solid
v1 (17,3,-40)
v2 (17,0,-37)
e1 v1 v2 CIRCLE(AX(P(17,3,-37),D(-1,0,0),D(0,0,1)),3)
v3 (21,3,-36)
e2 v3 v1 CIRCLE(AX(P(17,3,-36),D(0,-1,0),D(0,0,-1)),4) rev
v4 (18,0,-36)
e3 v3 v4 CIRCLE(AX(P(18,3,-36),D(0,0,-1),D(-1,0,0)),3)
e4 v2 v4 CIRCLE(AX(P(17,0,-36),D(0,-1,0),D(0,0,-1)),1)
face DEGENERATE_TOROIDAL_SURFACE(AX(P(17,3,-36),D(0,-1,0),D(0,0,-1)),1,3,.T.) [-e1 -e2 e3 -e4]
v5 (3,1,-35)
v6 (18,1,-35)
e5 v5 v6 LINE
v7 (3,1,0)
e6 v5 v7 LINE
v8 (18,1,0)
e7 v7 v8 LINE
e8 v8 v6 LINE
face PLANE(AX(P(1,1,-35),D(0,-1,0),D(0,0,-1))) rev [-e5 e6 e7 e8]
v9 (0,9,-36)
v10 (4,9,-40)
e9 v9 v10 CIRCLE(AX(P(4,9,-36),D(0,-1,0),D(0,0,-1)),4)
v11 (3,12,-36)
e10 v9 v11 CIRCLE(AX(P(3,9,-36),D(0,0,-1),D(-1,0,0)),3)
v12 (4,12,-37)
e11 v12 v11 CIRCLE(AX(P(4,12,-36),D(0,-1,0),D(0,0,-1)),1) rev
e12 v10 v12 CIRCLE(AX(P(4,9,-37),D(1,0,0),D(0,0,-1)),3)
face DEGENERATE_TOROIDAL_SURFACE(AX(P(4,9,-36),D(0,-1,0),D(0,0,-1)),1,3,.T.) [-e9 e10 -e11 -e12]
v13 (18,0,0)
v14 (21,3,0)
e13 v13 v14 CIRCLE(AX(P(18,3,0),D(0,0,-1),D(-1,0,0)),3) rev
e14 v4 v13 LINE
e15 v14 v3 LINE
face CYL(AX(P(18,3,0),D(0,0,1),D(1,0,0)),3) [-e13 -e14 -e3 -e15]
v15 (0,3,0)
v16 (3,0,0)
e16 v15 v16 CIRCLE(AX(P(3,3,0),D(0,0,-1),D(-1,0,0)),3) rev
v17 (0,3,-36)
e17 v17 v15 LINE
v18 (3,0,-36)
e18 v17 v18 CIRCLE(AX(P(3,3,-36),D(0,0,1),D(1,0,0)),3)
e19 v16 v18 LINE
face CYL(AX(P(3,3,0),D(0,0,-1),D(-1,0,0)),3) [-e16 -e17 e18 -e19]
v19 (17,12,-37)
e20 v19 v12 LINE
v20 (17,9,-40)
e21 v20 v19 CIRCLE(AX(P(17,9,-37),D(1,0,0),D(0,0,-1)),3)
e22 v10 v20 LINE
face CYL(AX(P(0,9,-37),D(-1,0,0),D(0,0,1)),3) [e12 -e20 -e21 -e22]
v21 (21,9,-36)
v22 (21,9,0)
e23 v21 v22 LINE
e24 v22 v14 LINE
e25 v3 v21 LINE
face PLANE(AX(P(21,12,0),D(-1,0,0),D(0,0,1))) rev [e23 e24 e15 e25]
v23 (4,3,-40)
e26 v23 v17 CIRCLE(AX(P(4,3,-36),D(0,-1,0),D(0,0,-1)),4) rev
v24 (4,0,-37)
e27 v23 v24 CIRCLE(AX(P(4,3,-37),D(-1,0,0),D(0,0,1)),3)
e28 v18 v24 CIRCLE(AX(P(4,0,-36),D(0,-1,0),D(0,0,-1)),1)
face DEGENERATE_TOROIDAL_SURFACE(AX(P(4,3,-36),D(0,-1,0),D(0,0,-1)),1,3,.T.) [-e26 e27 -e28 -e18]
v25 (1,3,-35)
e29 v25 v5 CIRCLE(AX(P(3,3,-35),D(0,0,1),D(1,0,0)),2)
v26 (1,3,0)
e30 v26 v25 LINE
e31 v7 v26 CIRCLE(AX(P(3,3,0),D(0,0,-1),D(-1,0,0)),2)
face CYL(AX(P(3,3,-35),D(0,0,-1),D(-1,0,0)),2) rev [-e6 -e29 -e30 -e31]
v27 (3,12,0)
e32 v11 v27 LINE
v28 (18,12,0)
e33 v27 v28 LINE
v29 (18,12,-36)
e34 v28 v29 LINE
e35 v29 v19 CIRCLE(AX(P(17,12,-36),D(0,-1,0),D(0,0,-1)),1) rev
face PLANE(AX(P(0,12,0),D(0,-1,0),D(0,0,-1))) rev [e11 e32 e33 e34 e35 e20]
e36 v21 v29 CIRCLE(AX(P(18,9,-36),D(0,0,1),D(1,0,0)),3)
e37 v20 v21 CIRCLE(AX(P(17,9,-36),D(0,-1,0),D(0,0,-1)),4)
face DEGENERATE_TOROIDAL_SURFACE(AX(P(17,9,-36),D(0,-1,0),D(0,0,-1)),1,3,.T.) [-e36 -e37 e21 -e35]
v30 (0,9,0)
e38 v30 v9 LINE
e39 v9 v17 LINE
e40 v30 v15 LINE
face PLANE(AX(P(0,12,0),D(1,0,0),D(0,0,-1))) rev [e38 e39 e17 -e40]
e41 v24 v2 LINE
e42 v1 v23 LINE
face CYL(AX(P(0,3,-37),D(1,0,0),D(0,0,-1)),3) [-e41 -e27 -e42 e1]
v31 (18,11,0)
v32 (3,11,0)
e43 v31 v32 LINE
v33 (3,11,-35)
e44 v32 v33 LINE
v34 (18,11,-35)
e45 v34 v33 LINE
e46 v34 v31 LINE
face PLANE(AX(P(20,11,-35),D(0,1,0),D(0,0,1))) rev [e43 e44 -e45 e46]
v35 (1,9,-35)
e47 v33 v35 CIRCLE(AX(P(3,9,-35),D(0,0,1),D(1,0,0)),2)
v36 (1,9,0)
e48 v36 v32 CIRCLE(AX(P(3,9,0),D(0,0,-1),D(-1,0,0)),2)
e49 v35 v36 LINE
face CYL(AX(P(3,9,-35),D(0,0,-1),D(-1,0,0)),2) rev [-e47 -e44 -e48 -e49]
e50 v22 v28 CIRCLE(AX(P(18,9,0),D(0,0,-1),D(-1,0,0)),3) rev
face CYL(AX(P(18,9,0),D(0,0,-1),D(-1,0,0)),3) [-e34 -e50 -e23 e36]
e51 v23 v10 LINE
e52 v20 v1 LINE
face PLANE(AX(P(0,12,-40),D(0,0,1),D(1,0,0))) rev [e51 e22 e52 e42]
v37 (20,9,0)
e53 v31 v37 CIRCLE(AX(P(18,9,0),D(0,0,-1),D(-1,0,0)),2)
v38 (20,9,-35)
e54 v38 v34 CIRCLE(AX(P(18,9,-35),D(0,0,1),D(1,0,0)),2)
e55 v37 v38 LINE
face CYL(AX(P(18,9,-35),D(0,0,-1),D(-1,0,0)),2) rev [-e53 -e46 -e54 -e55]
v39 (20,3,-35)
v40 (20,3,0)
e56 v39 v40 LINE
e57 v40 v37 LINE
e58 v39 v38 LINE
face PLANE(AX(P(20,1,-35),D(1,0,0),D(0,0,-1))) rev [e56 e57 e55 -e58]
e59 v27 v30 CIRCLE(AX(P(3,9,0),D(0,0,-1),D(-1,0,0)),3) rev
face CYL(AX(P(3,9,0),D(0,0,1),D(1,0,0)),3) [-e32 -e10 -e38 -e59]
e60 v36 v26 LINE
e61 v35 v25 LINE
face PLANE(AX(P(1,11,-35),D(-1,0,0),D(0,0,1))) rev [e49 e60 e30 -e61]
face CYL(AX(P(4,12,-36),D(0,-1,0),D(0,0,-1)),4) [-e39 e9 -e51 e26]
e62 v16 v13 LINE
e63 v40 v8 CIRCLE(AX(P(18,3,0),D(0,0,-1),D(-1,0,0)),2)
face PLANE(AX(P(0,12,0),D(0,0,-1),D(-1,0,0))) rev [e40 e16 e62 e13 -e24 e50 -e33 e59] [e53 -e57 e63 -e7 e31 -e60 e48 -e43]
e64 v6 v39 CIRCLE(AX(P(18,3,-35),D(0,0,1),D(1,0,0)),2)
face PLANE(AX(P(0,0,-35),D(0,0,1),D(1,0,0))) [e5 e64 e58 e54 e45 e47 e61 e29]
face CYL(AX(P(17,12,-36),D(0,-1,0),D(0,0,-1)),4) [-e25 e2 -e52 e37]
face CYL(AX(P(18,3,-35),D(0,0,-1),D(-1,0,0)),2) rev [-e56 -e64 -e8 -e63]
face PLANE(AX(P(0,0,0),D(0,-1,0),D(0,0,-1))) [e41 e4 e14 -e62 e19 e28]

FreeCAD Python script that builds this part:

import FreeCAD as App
import Part
import Sketcher
from FreeCAD import Vector
Q = App.Units.Quantity


def edges_at(feature, points):
    """Names of the edges that pass closest to the given points."""
    edges = feature.Shape.Edges
    near = lambda p: min(range(len(edges)), key=lambda i: edges[i].distToShape(Part.Vertex(*p))[0])
    return sorted({f"Edge{near(p) + 1}" for p in points})


def add_polygon(sketch, points):
    """Adds a closed chain of lines whose ends are joined by coincident constraints."""
    first, n = sketch.GeometryCount, len(points)
    for a, b in zip(points, points[1:] + points[:1]):
        sketch.addGeometry(Part.LineSegment(App.Vector(*a, 0), App.Vector(*b, 0)), False)
    for i in range(n):
        sketch.addConstraint(Sketcher.Constraint("Coincident", first + i, 2, first + (i + 1) % n, 1))

doc = App.newDocument("Part")
params = doc.addObject("Spreadsheet::Sheet", "Params")
for row, (alias, value) in enumerate([
    ("sketch1_width", "21 mm"),
    ("sketch1_height", "40 mm"),
    ("pad1_length", "12 mm"),
    ("sketch2_width", "19 mm"),
    ("sketch2_height", "10 mm"),
    ("pocket1_length", "35 mm"),
    ("fillet_radius", "4 mm"),
    ("fillet2_radius", "3 mm"),
    ("fillet3_radius", "2 mm"),
], start=1):
    params.set(f"A{row}", alias)
    params.set(f"B{row}", "=" + value)
    params.setAlias(f"B{row}", alias)

body = doc.addObject("PartDesign::Body", "Body")

sketch1 = doc.addObject("Sketcher::SketchObject", "Sketch")
body.addObject(sketch1)
sketch1.AttachmentSupport = (doc.XZ_Plane, [""])
sketch1.MapMode = "FlatFace"
add_polygon(sketch1, [(0, -40), (0, 0), (21, 0), (21, -40)])
sketch1.addConstraint([
    Sketcher.Constraint("Vertical", 0),
    Sketcher.Constraint("Horizontal", 1),
    Sketcher.Constraint("Vertical", 2),
    Sketcher.Constraint("Horizontal", 3),
    Sketcher.Constraint("Coincident", 0, 2, -1, 1),
    Sketcher.Constraint("DistanceX", 1, 1, 1, 2, Q("21 mm")),
    Sketcher.Constraint("DistanceY", 0, 1, 0, 2, Q("40 mm")),
])
sketch1.setExpression("Constraints[9]", "Params.sketch1_width")
sketch1.setExpression("Constraints[10]", "Params.sketch1_height")
pad1 = doc.addObject("PartDesign::Pad", "Pad")
body.addObject(pad1)
pad1.Profile = sketch1
pad1.setExpression("Length", "Params.pad1_length")
pad1.Reversed = True

sketch2 = doc.addObject("Sketcher::SketchObject", "Sketch001")
body.addObject(sketch2)
sketch2.AttachmentSupport = (doc.XY_Plane, [""])
sketch2.MapMode = "FlatFace"
add_polygon(sketch2, [(1, 11), (1, 1), (20, 1), (20, 11)])
sketch2.addConstraint([
    Sketcher.Constraint("Vertical", 0),
    Sketcher.Constraint("Horizontal", 1),
    Sketcher.Constraint("Vertical", 2),
    Sketcher.Constraint("Horizontal", 3),
    Sketcher.Constraint("DistanceX", 1, 1, 1, 2, Q("19 mm")),
    Sketcher.Constraint("DistanceY", 0, 2, 0, 1, Q("10 mm")),
    Sketcher.Constraint("DistanceX", -1, 1, 0, 2, Q("1 mm")),
    Sketcher.Constraint("DistanceY", -1, 1, 0, 2, Q("1 mm")),
])
sketch2.setExpression("Constraints[8]", "Params.sketch2_width")
sketch2.setExpression("Constraints[9]", "Params.sketch2_height")
pocket1 = doc.addObject("PartDesign::Pocket", "Pocket")
body.addObject(pocket1)
pocket1.Profile = sketch2
pocket1.setExpression("Length", "Params.pocket1_length")
doc.recompute()

fillet = doc.addObject("PartDesign::Fillet", "Fillet")
body.addObject(fillet)
fillet.Base = (pocket1, edges_at(pocket1, [(0, 6, -40), (21, 6, -40)]))
fillet.setExpression("Radius", "Params.fillet_radius")
doc.recompute()

fillet2 = doc.addObject("PartDesign::Fillet", "Fillet001")
body.addObject(fillet2)
fillet2.Base = (fillet, edges_at(fillet, [
    (21, 12, -18),
    (0, 0, -18),
    (0, 12, -18),
    (10.5, 0, -40),
    (19.828, 0, -38.828),
    (1.172, 0, -38.828),
    (10.5, 12, -40),
    (19.828, 12, -38.828),
    (1.172, 12, -38.828),
    (21, 0, -18),
]))
fillet2.setExpression("Radius", "Params.fillet2_radius")
doc.recompute()

fillet3 = doc.addObject("PartDesign::Fillet", "Fillet002")
body.addObject(fillet3)
fillet3.Base = (fillet2, edges_at(fillet2, [
    (20, 11, -17.5),
    (20, 1, -17.5),
    (1, 1, -17.5),
    (1, 11, -17.5),
]))
fillet3.setExpression("Radius", "Params.fillet3_radius")

doc.recompute()
